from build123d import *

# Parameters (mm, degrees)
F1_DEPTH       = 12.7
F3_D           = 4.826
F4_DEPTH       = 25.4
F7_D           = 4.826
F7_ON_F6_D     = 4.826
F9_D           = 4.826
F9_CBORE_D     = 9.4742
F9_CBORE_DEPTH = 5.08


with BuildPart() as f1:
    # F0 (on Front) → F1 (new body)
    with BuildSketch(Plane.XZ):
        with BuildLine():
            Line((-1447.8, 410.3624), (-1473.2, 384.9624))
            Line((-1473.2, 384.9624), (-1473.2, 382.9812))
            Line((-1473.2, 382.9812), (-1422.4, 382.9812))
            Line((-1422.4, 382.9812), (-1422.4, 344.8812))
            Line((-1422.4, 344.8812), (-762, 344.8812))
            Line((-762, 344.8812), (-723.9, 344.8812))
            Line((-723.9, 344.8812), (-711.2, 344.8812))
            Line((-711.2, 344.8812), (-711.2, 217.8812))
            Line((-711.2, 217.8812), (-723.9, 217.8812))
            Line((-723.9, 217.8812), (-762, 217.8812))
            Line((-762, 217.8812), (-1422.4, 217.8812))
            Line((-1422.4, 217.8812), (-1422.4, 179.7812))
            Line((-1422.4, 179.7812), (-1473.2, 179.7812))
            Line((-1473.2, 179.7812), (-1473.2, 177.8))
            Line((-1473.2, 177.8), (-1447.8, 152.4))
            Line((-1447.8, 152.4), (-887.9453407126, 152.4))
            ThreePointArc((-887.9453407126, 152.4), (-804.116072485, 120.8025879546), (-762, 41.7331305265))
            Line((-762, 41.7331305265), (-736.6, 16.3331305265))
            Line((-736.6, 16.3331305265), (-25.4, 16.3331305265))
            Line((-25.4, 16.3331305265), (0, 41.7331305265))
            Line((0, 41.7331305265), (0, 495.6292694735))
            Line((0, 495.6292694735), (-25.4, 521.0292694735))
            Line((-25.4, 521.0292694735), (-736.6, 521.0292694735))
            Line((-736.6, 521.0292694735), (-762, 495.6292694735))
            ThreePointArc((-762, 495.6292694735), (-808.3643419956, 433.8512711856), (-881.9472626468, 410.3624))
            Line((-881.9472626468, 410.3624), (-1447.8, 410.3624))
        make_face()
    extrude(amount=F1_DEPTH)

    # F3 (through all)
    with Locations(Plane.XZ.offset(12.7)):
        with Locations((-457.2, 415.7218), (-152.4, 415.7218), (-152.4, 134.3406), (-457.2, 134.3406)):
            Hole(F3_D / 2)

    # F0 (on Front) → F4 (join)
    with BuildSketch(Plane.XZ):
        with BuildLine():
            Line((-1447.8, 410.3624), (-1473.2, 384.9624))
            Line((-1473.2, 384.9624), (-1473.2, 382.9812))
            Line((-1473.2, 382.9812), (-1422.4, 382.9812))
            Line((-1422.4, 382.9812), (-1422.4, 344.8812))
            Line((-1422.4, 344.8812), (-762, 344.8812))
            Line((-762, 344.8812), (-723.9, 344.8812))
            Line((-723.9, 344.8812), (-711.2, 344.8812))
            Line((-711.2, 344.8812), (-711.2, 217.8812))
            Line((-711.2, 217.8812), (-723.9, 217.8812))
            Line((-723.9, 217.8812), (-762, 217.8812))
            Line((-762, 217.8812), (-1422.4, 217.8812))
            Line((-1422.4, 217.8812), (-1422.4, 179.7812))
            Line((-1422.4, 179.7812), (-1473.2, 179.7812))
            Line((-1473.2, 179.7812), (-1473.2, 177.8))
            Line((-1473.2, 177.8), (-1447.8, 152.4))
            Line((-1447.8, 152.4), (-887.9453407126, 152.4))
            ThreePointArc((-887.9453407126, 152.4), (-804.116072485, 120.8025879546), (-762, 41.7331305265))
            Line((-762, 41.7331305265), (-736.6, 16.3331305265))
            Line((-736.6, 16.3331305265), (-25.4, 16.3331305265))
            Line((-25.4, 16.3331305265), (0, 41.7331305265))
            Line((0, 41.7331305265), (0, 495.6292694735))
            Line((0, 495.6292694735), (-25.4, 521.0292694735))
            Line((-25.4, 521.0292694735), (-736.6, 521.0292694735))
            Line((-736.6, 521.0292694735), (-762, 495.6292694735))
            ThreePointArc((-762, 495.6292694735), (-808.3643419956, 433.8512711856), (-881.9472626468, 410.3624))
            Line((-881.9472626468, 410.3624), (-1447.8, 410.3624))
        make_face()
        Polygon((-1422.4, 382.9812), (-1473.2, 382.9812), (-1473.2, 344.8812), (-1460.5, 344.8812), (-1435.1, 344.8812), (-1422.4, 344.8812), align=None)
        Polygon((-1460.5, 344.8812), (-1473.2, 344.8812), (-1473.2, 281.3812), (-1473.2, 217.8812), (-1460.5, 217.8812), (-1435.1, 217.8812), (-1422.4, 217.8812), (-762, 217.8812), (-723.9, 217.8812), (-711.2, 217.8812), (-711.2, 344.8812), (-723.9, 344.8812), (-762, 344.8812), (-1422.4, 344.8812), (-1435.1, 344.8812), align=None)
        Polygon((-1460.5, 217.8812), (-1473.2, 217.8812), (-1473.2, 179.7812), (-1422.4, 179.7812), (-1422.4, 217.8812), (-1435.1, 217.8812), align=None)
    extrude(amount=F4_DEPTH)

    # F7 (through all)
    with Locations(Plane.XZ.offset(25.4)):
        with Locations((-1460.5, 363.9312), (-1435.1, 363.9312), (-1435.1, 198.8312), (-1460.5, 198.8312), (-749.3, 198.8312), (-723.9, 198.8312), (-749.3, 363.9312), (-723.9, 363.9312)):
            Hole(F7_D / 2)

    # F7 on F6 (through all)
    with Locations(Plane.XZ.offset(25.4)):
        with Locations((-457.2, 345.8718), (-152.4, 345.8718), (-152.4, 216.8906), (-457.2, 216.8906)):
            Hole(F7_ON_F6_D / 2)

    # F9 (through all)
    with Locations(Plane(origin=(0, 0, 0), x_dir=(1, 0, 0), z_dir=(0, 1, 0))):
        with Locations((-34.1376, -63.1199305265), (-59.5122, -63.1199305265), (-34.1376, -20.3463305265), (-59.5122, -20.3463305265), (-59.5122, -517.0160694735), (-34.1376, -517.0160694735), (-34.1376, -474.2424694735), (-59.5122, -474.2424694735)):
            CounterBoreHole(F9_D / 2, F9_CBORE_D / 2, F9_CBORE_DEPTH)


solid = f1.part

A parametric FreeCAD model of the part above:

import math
import FreeCAD as App
import Part
import Sketcher

V = App.Vector
Q = App.Units.Quantity

doc = App.newDocument("Part")
body = doc.addObject("PartDesign::Body", "Body")

sketch1 = body.newObject("Sketcher::SketchObject", "Sketch")
sketch1.AttachmentSupport = (doc.getObject("XZ_Plane"), [""])
sketch1.MapMode = "FlatFace"
sketch1.addGeometry([
    Part.LineSegment(V(-1447.8, 410.3624, 0), V(-1473.2, 384.9624, 0)),
    Part.LineSegment(V(-1473.2, 384.9624, 0), V(-1473.2, 382.9812, 0)),
    Part.LineSegment(V(-1473.2, 382.9812, 0), V(-1422.4, 382.9812, 0)),
    Part.LineSegment(V(-1422.4, 382.9812, 0), V(-1422.4, 344.8812, 0)),
    Part.LineSegment(V(-1422.4, 344.8812, 0), V(-711.2, 344.8812, 0)),
    Part.LineSegment(V(-711.2, 344.8812, 0), V(-711.2, 217.8812, 0)),
    Part.LineSegment(V(-711.2, 217.8812, 0), V(-1422.4, 217.8812, 0)),
    Part.LineSegment(V(-1422.4, 217.8812, 0), V(-1422.4, 179.7812, 0)),
    Part.LineSegment(V(-1422.4, 179.7812, 0), V(-1473.2, 179.7812, 0)),
    Part.LineSegment(V(-1473.2, 179.7812, 0), V(-1473.2, 177.8, 0)),
    Part.LineSegment(V(-1473.2, 177.8, 0), V(-1447.8, 152.4, 0)),
    Part.LineSegment(V(-1447.8, 152.4, 0), V(-887.945341, 152.4, 0)),
    Part.ArcOfCircle(Part.Circle(V(-887.945341, 25.4, 0), V(0, 0, 1), 127), math.radians(7.389122), math.radians(90)),
    Part.LineSegment(V(-762, 41.733131, 0), V(-736.6, 16.333131, 0)),
    Part.LineSegment(V(-736.6, 16.333131, 0), V(-25.4, 16.333131, 0)),
    Part.LineSegment(V(-25.4, 16.333131, 0), V(0, 41.733131, 0)),
    Part.LineSegment(V(0, 41.733131, 0), V(0, 495.629269, 0)),
    Part.LineSegment(V(0, 495.629269, 0), V(-25.4, 521.029269, 0)),
    Part.LineSegment(V(-25.4, 521.029269, 0), V(-736.6, 521.029269, 0)),
    Part.LineSegment(V(-736.6, 521.029269, 0), V(-762, 495.629269, 0)),
    Part.ArcOfCircle(Part.Circle(V(-881.947263, 537.3624, 0), V(0, 0, 1), 127), math.radians(-90), math.radians(-19.184268)),
    Part.LineSegment(V(-881.947263, 410.3624, 0), V(-1447.8, 410.3624, 0)),
], False)
sketch1.addConstraint([
    Sketcher.Constraint("Coincident", 0, 2, 1, 1),
    Sketcher.Constraint("Coincident", 1, 2, 2, 1),
    Sketcher.Constraint("Coincident", 2, 2, 3, 1),
    Sketcher.Constraint("Coincident", 3, 2, 4, 1),
    Sketcher.Constraint("Coincident", 4, 2, 5, 1),
    Sketcher.Constraint("Coincident", 5, 2, 6, 1),
    Sketcher.Constraint("Coincident", 6, 2, 7, 1),
    Sketcher.Constraint("Coincident", 7, 2, 8, 1),
    Sketcher.Constraint("Coincident", 8, 2, 9, 1),
    Sketcher.Constraint("Coincident", 9, 2, 10, 1),
    Sketcher.Constraint("Coincident", 10, 2, 11, 1),
    Sketcher.Constraint("Tangent", 11, 2, 12, 2),
    Sketcher.Constraint("Coincident", 12, 1, 13, 1),
    Sketcher.Constraint("Coincident", 13, 2, 14, 1),
    Sketcher.Constraint("Coincident", 14, 2, 15, 1),
    Sketcher.Constraint("Coincident", 15, 2, 16, 1),
    Sketcher.Constraint("Coincident", 16, 2, 17, 1),
    Sketcher.Constraint("Coincident", 17, 2, 18, 1),
    Sketcher.Constraint("Coincident", 18, 2, 19, 1),
    Sketcher.Constraint("Coincident", 19, 2, 20, 2),
    Sketcher.Constraint("Tangent", 20, 1, 21, 1),
    Sketcher.Constraint("Coincident", 21, 2, 0, 1),
    Sketcher.Constraint("Vertical", 1),
    Sketcher.Constraint("Horizontal", 2),
    Sketcher.Constraint("Vertical", 3),
    Sketcher.Constraint("Horizontal", 4),
    Sketcher.Constraint("Vertical", 5),
    Sketcher.Constraint("Horizontal", 6),
    Sketcher.Constraint("Vertical", 7),
    Sketcher.Constraint("Horizontal", 8),
    Sketcher.Constraint("Vertical", 9),
    Sketcher.Constraint("Horizontal", 11),
    Sketcher.Constraint("Horizontal", 14),
    Sketcher.Constraint("Vertical", 16),
    Sketcher.Constraint("Horizontal", 18),
    Sketcher.Constraint("Horizontal", 21),
    Sketcher.Constraint("Equal", 12, 20),
    Sketcher.Constraint("PointOnObject", 15, 2, -2),
    Sketcher.Constraint("Perpendicular", 0, 10),
    Sketcher.Constraint("Parallel", 10, 13),
    Sketcher.Constraint("Perpendicular", 13, 15),
    Sketcher.Constraint("Perpendicular", 15, 17),
    Sketcher.Constraint("Perpendicular", 17, 19),
    Sketcher.Constraint("Horizontal", 12, 1, 15, 2),
    Sketcher.Constraint("Horizontal", 16, 2, 19, 2),
    Sketcher.Constraint("Vertical", 3, 2, 6, 2),
    Sketcher.Constraint("Vertical", 1, 2, 8, 2),
    Sketcher.Constraint("Vertical", 14, 2, 17, 2),
    Sketcher.Constraint("Vertical", 13, 2, 18, 2),
    Sketcher.Constraint("Vertical", 12, 1, 19, 2),
    Sketcher.Constraint("Vertical", 10, 2, 21, 2),
    Sketcher.Constraint("Equal", 6, 14),
    Sketcher.Constraint("Equal", 3, 7),
    Sketcher.Constraint("Equal", 1, 9),
    Sketcher.Constraint("Equal", 10, 13),
    Sketcher.Constraint("Radius", 12, Q("5 in")),
    Sketcher.Constraint("DistanceX", 2, 1, 2, 2, Q("2 in")),
    Sketcher.Constraint("DistanceX", 4, 1, 4, 2, Q("28 in")),
    Sketcher.Constraint("DistanceY", 5, 2, 5, 1, Q("5 in")),
    Sketcher.Constraint("DistanceY", 3, 2, 3, 1, Q("1.5 in")),
    Sketcher.Constraint("DistanceY", -1, 1, 12, 3, Q("1 in")),
    Sketcher.Constraint("DistanceX", 0, 2, -1, 1, Q("58 in")),
    Sketcher.Constraint("DistanceY", -1, 1, 9, 2, Q("7 in")),
    Sketcher.Constraint("DistanceY", 1, 2, 1, 1, Q("0.078 in")),
    Sketcher.Constraint("DistanceX", 11, 1, 11, 2, Q("559.854659 mm")),
    Sketcher.Constraint("DistanceY", 16, 1, 16, 2, Q("453.896139 mm")),
])
pad1 = body.newObject("PartDesign::Pad", "Pad")
pad1.Profile = sketch1
pad1.Length = Q("0.5 in")

sketch2 = body.newObject("Sketcher::SketchObject", "Sketch001")
sketch2.AttachmentSupport = (doc.getObject("XZ_Plane"), [""])
sketch2.MapMode = "FlatFace"
sketch2.AttachmentOffset = App.Placement(V(0, 0, 0.5 * 25.4), App.Rotation())
sketch2.addGeometry([
    Part.Circle(V(-457.2, 415.7218, 0), V(0, 0, 1), 2.413),
    Part.Circle(V(-152.4, 415.7218, 0), V(0, 0, 1), 2.413),
    Part.Circle(V(-152.4, 134.3406, 0), V(0, 0, 1), 2.413),
    Part.Circle(V(-457.2, 134.3406, 0), V(0, 0, 1), 2.413),
], False)
sketch2.addConstraint([
    Sketcher.Constraint("Equal", 0, 1),
    Sketcher.Constraint("Equal", 1, 2),
    Sketcher.Constraint("Equal", 2, 3),
    Sketcher.Constraint("Horizontal", 0, 3, 1, 3),
    Sketcher.Constraint("Horizontal", 2, 3, 3, 3),
    Sketcher.Constraint("Vertical", 1, 3, 2, 3),
    Sketcher.Constraint("Vertical", 0, 3, 3, 3),
    Sketcher.Constraint("Diameter", 0, Q("0.19 in")),
    Sketcher.Constraint("DistanceX", 0, 3, -1, 1, Q("18 in")),
    Sketcher.Constraint("DistanceX", 1, 3, -1, 1, Q("6 in")),
    Sketcher.Constraint("DistanceY", -1, 1, 0, 3, Q("16.367 in")),
    Sketcher.Constraint("DistanceY", -1, 1, 2, 3, Q("5.289 in")),
])
doc.recompute()
hole = body.newObject("PartDesign::Hole", "Hole")
hole.Profile = sketch2
hole.ThreadType = "None"
hole.Diameter = Q("0.19 in")
hole.DepthType = "ThroughAll"

sketch3 = body.newObject("Sketcher::SketchObject", "Sketch002")
sketch3.AttachmentSupport = (doc.getObject("XZ_Plane"), [""])
sketch3.MapMode = "FlatFace"
sketch3.addGeometry([
    Part.LineSegment(V(-1447.8, 410.3624, 0), V(-1473.2, 384.9624, 0)),
    Part.LineSegment(V(-1473.2, 384.9624, 0), V(-1473.2, 177.8, 0)),
    Part.LineSegment(V(-1473.2, 177.8, 0), V(-1447.8, 152.4, 0)),
    Part.LineSegment(V(-1447.8, 152.4, 0), V(-887.945341, 152.4, 0)),
    Part.ArcOfCircle(Part.Circle(V(-887.945341, 25.4, 0), V(0, 0, 1), 127), math.radians(7.389122), math.radians(90)),
    Part.LineSegment(V(-762, 41.733131, 0), V(-736.6, 16.333131, 0)),
    Part.LineSegment(V(-736.6, 16.333131, 0), V(-25.4, 16.333131, 0)),
    Part.LineSegment(V(-25.4, 16.333131, 0), V(0, 41.733131, 0)),
    Part.LineSegment(V(0, 41.733131, 0), V(0, 495.629269, 0)),
    Part.LineSegment(V(0, 495.629269, 0), V(-25.4, 521.029269, 0)),
    Part.LineSegment(V(-25.4, 521.029269, 0), V(-736.6, 521.029269, 0)),
    Part.LineSegment(V(-736.6, 521.029269, 0), V(-762, 495.629269, 0)),
    Part.ArcOfCircle(Part.Circle(V(-881.947263, 537.3624, 0), V(0, 0, 1), 127), math.radians(-90), math.radians(-19.184268)),
    Part.LineSegment(V(-881.947263, 410.3624, 0), V(-1447.8, 410.3624, 0)),
], False)
sketch3.addConstraint([
    Sketcher.Constraint("Coincident", 0, 2, 1, 1),
    Sketcher.Constraint("Coincident", 1, 2, 2, 1),
    Sketcher.Constraint("Coincident", 2, 2, 3, 1),
    Sketcher.Constraint("Tangent", 3, 2, 4, 2),
    Sketcher.Constraint("Coincident", 4, 1, 5, 1),
    Sketcher.Constraint("Coincident", 5, 2, 6, 1),
    Sketcher.Constraint("Coincident", 6, 2, 7, 1),
    Sketcher.Constraint("Coincident", 7, 2, 8, 1),
    Sketcher.Constraint("Coincident", 8, 2, 9, 1),
    Sketcher.Constraint("Coincident", 9, 2, 10, 1),
    Sketcher.Constraint("Coincident", 10, 2, 11, 1),
    Sketcher.Constraint("Coincident", 11, 2, 12, 2),
    Sketcher.Constraint("Tangent", 12, 1, 13, 1),
    Sketcher.Constraint("Coincident", 13, 2, 0, 1),
    Sketcher.Constraint("Vertical", 1),
    Sketcher.Constraint("Horizontal", 3),
    Sketcher.Constraint("Horizontal", 6),
    Sketcher.Constraint("Vertical", 8),
    Sketcher.Constraint("Horizontal", 10),
    Sketcher.Constraint("Horizontal", 13),
    Sketcher.Constraint("Equal", 4, 12),
    Sketcher.Constraint("PointOnObject", 7, 2, -2),
    Sketcher.Constraint("Perpendicular", 0, 2),
    Sketcher.Constraint("Parallel", 2, 5),
    Sketcher.Constraint("Perpendicular", 5, 7),
    Sketcher.Constraint("Perpendicular", 7, 9),
    Sketcher.Constraint("Perpendicular", 9, 11),
    Sketcher.Constraint("Horizontal", 4, 1, 7, 2),
    Sketcher.Constraint("Horizontal", 8, 2, 11, 2),
    Sketcher.Constraint("Vertical", 6, 2, 9, 2),
    Sketcher.Constraint("Vertical", 5, 2, 10, 2),
    Sketcher.Constraint("Vertical", 4, 1, 11, 2),
    Sketcher.Constraint("Vertical", 2, 2, 13, 2),
    Sketcher.Constraint("Equal", 2, 5),
    Sketcher.Constraint("Radius", 4, Q("5 in")),
    Sketcher.Constraint("DistanceX", 6, 1, 6, 2, Q("28 in")),
    Sketcher.Constraint("DistanceY", -1, 1, 4, 3, Q("1 in")),
    Sketcher.Constraint("DistanceX", 0, 2, -1, 1, Q("58 in")),
    Sketcher.Constraint("DistanceY", -1, 1, 1, 2, Q("7 in")),
    Sketcher.Constraint("DistanceY", 1, 2, 1, 1, Q("8.156 in")),
    Sketcher.Constraint("DistanceX", 3, 1, 3, 2, Q("559.854659 mm")),
    Sketcher.Constraint("DistanceY", 8, 1, 8, 2, Q("453.896139 mm")),
])
pad2 = body.newObject("PartDesign::Pad", "Pad001")
pad2.Profile = sketch3
pad2.Length = Q("1 in")

sketch4 = body.newObject("Sketcher::SketchObject", "Sketch003")
sketch4.AttachmentSupport = (doc.getObject("XZ_Plane"), [""])
sketch4.MapMode = "FlatFace"
sketch4.AttachmentOffset = App.Placement(V(0, 0, 1 * 25.4), App.Rotation())
sketch4.addGeometry([
    Part.Circle(V(-1460.5, 363.9312, 0), V(0, 0, 1), 2.413),
    Part.Circle(V(-1435.1, 363.9312, 0), V(0, 0, 1), 2.413),
    Part.Circle(V(-1435.1, 198.8312, 0), V(0, 0, 1), 2.413),
    Part.Circle(V(-1460.5, 198.8312, 0), V(0, 0, 1), 2.413),
    Part.Circle(V(-749.3, 198.8312, 0), V(0, 0, 1), 2.413),
    Part.Circle(V(-723.9, 198.8312, 0), V(0, 0, 1), 2.413),
    Part.Circle(V(-749.3, 363.9312, 0), V(0, 0, 1), 2.413),
    Part.Circle(V(-723.9, 363.9312, 0), V(0, 0, 1), 2.413),
], False)
sketch4.addConstraint([
    Sketcher.Constraint("Equal", 0, 1),
    Sketcher.Constraint("Equal", 1, 2),
    Sketcher.Constraint("Equal", 2, 3),
    Sketcher.Constraint("Equal", 3, 4),
    Sketcher.Constraint("Equal", 4, 5),
    Sketcher.Constraint("Equal", 5, 6),
    Sketcher.Constraint("Equal", 6, 7),
    Sketcher.Constraint("Horizontal", 0, 3, 1, 3),
    Sketcher.Constraint("Horizontal", 2, 3, 3, 3),
    Sketcher.Constraint("Horizontal", 3, 3, 4, 3),
    Sketcher.Constraint("Horizontal", 4, 3, 5, 3),
    Sketcher.Constraint("Horizontal", 1, 3, 6, 3),
    Sketcher.Constraint("Horizontal", 6, 3, 7, 3),
    Sketcher.Constraint("Vertical", 1, 3, 2, 3),
    Sketcher.Constraint("Vertical", 0, 3, 3, 3),
    Sketcher.Constraint("Vertical", 4, 3, 6, 3),
    Sketcher.Constraint("Vertical", 5, 3, 7, 3),
    Sketcher.Constraint("Diameter", 0, Q("0.19 in")),
    Sketcher.Constraint("DistanceX", 0, 3, 1, 3, Q("1 in")),
    Sketcher.Constraint("DistanceX", 2, 3, 4, 3, Q("27 in")),
    Sketcher.Constraint("DistanceX", 4, 3, 5, 3, Q("1 in")),
    Sketcher.Constraint("DistanceX", 0, 3, -1, 1, Q("57.5 in")),
    Sketcher.Constraint("DistanceY", 2, 3, 1, 3, Q("6.5 in")),
    Sketcher.Constraint("DistanceY", -1, 1, 0, 3, Q("14.328 in")),
])
doc.recompute()
hole2 = body.newObject("PartDesign::Hole", "Hole001")
hole2.Profile = sketch4
hole2.ThreadType = "None"
hole2.Diameter = Q("0.19 in")
hole2.DepthType = "ThroughAll"

sketch5 = body.newObject("Sketcher::SketchObject", "Sketch004")
sketch5.AttachmentSupport = (doc.getObject("XZ_Plane"), [""])
sketch5.MapMode = "FlatFace"
sketch5.AttachmentOffset = App.Placement(V(0, 0, 1 * 25.4), App.Rotation())
sketch5.addGeometry([
    Part.Circle(V(-457.2, 345.8718, 0), V(0, 0, 1), 2.413),
    Part.Circle(V(-152.4, 345.8718, 0), V(0, 0, 1), 2.413),
    Part.Circle(V(-152.4, 216.8906, 0), V(0, 0, 1), 2.413),
    Part.Circle(V(-457.2, 216.8906, 0), V(0, 0, 1), 2.413),
], False)
sketch5.addConstraint([
    Sketcher.Constraint("Equal", 0, 1),
    Sketcher.Constraint("Equal", 1, 2),
    Sketcher.Constraint("Equal", 2, 3),
    Sketcher.Constraint("Horizontal", 0, 3, 1, 3),
    Sketcher.Constraint("Horizontal", 2, 3, 3, 3),
    Sketcher.Constraint("Vertical", 1, 3, 2, 3),
    Sketcher.Constraint("Vertical", 0, 3, 3, 3),
    Sketcher.Constraint("Diameter", 0, Q("0.19 in")),
    Sketcher.Constraint("DistanceX", 0, 3, -1, 1, Q("18 in")),
    Sketcher.Constraint("DistanceX", 1, 3, -1, 1, Q("6 in")),
    Sketcher.Constraint("DistanceY", -1, 1, 0, 3, Q("13.617 in")),
    Sketcher.Constraint("DistanceY", -1, 1, 2, 3, Q("8.539 in")),
])
doc.recompute()
hole3 = body.newObject("PartDesign::Hole", "Hole002")
hole3.Profile = sketch5
hole3.ThreadType = "None"
hole3.Diameter = Q("0.19 in")
hole3.DepthType = "ThroughAll"

sketch6 = body.newObject("Sketcher::SketchObject", "Sketch005")
sketch6.AttachmentSupport = (doc.getObject("XZ_Plane"), [""])
sketch6.MapMode = "FlatFace"
sketch6.addGeometry([
    Part.Circle(V(-34.1376, 63.119931, 0), V(0, 0, 1), 2.413),
    Part.Circle(V(-59.5122, 63.119931, 0), V(0, 0, 1), 2.413),
    Part.Circle(V(-34.1376, 20.346331, 0), V(0, 0, 1), 2.413),
    Part.Circle(V(-59.5122, 20.346331, 0), V(0, 0, 1), 2.413),
    Part.Circle(V(-59.5122, 517.016069, 0), V(0, 0, 1), 2.413),
    Part.Circle(V(-34.1376, 517.016069, 0), V(0, 0, 1), 2.413),
    Part.Circle(V(-34.1376, 474.242469, 0), V(0, 0, 1), 2.413),
    Part.Circle(V(-59.5122, 474.242469, 0), V(0, 0, 1), 2.413),
], False)
sketch6.addConstraint([
    Sketcher.Constraint("Equal", 0, 1),
    Sketcher.Constraint("Equal", 1, 2),
    Sketcher.Constraint("Equal", 2, 3),
    Sketcher.Constraint("Equal", 3, 4),
    Sketcher.Constraint("Equal", 4, 5),
    Sketcher.Constraint("Equal", 5, 6),
    Sketcher.Constraint("Equal", 6, 7),
    Sketcher.Constraint("Horizontal", 0, 3, 1, 3),
    Sketcher.Constraint("Horizontal", 2, 3, 3, 3),
    Sketcher.Constraint("Horizontal", 4, 3, 5, 3),
    Sketcher.Constraint("Horizontal", 6, 3, 7, 3),
    Sketcher.Constraint("Vertical", 0, 3, 2, 3),
    Sketcher.Constraint("Vertical", 1, 3, 3, 3),
    Sketcher.Constraint("Vertical", 3, 3, 4, 3),
    Sketcher.Constraint("Vertical", 2, 3, 5, 3),
    Sketcher.Constraint("Vertical", 5, 3, 6, 3),
    Sketcher.Constraint("Vertical", 4, 3, 7, 3),
    Sketcher.Constraint("Diameter", 0, Q("0.19 in")),
    Sketcher.Constraint("DistanceX", 0, 3, -1, 1, Q("1.344 in")),
    Sketcher.Constraint("DistanceX", 1, 3, -1, 1, Q("2.343 in")),
    Sketcher.Constraint("DistanceY", 2, 3, 0, 3, Q("1.684 in")),
    Sketcher.Constraint("DistanceY", 6, 3, 5, 3, Q("1.684 in")),
    Sketcher.Constraint("DistanceY", -1, 1, 0, 3, Q("63.119931 mm")),
    Sketcher.Constraint("DistanceY", -1, 1, 4, 3, Q("517.016069 mm")),
])
doc.recompute()
hole4 = body.newObject("PartDesign::Hole", "Hole003")
hole4.Profile = sketch6
hole4.ThreadType = "None"
hole4.Diameter = Q("0.19 in")
hole4.DepthType = "ThroughAll"
hole4.HoleCutType = "Counterbore"
hole4.HoleCutDiameter = Q("0.373 in")
hole4.HoleCutDepth = Q("0.2 in")
hole4.Reversed = True

doc.recompute()
